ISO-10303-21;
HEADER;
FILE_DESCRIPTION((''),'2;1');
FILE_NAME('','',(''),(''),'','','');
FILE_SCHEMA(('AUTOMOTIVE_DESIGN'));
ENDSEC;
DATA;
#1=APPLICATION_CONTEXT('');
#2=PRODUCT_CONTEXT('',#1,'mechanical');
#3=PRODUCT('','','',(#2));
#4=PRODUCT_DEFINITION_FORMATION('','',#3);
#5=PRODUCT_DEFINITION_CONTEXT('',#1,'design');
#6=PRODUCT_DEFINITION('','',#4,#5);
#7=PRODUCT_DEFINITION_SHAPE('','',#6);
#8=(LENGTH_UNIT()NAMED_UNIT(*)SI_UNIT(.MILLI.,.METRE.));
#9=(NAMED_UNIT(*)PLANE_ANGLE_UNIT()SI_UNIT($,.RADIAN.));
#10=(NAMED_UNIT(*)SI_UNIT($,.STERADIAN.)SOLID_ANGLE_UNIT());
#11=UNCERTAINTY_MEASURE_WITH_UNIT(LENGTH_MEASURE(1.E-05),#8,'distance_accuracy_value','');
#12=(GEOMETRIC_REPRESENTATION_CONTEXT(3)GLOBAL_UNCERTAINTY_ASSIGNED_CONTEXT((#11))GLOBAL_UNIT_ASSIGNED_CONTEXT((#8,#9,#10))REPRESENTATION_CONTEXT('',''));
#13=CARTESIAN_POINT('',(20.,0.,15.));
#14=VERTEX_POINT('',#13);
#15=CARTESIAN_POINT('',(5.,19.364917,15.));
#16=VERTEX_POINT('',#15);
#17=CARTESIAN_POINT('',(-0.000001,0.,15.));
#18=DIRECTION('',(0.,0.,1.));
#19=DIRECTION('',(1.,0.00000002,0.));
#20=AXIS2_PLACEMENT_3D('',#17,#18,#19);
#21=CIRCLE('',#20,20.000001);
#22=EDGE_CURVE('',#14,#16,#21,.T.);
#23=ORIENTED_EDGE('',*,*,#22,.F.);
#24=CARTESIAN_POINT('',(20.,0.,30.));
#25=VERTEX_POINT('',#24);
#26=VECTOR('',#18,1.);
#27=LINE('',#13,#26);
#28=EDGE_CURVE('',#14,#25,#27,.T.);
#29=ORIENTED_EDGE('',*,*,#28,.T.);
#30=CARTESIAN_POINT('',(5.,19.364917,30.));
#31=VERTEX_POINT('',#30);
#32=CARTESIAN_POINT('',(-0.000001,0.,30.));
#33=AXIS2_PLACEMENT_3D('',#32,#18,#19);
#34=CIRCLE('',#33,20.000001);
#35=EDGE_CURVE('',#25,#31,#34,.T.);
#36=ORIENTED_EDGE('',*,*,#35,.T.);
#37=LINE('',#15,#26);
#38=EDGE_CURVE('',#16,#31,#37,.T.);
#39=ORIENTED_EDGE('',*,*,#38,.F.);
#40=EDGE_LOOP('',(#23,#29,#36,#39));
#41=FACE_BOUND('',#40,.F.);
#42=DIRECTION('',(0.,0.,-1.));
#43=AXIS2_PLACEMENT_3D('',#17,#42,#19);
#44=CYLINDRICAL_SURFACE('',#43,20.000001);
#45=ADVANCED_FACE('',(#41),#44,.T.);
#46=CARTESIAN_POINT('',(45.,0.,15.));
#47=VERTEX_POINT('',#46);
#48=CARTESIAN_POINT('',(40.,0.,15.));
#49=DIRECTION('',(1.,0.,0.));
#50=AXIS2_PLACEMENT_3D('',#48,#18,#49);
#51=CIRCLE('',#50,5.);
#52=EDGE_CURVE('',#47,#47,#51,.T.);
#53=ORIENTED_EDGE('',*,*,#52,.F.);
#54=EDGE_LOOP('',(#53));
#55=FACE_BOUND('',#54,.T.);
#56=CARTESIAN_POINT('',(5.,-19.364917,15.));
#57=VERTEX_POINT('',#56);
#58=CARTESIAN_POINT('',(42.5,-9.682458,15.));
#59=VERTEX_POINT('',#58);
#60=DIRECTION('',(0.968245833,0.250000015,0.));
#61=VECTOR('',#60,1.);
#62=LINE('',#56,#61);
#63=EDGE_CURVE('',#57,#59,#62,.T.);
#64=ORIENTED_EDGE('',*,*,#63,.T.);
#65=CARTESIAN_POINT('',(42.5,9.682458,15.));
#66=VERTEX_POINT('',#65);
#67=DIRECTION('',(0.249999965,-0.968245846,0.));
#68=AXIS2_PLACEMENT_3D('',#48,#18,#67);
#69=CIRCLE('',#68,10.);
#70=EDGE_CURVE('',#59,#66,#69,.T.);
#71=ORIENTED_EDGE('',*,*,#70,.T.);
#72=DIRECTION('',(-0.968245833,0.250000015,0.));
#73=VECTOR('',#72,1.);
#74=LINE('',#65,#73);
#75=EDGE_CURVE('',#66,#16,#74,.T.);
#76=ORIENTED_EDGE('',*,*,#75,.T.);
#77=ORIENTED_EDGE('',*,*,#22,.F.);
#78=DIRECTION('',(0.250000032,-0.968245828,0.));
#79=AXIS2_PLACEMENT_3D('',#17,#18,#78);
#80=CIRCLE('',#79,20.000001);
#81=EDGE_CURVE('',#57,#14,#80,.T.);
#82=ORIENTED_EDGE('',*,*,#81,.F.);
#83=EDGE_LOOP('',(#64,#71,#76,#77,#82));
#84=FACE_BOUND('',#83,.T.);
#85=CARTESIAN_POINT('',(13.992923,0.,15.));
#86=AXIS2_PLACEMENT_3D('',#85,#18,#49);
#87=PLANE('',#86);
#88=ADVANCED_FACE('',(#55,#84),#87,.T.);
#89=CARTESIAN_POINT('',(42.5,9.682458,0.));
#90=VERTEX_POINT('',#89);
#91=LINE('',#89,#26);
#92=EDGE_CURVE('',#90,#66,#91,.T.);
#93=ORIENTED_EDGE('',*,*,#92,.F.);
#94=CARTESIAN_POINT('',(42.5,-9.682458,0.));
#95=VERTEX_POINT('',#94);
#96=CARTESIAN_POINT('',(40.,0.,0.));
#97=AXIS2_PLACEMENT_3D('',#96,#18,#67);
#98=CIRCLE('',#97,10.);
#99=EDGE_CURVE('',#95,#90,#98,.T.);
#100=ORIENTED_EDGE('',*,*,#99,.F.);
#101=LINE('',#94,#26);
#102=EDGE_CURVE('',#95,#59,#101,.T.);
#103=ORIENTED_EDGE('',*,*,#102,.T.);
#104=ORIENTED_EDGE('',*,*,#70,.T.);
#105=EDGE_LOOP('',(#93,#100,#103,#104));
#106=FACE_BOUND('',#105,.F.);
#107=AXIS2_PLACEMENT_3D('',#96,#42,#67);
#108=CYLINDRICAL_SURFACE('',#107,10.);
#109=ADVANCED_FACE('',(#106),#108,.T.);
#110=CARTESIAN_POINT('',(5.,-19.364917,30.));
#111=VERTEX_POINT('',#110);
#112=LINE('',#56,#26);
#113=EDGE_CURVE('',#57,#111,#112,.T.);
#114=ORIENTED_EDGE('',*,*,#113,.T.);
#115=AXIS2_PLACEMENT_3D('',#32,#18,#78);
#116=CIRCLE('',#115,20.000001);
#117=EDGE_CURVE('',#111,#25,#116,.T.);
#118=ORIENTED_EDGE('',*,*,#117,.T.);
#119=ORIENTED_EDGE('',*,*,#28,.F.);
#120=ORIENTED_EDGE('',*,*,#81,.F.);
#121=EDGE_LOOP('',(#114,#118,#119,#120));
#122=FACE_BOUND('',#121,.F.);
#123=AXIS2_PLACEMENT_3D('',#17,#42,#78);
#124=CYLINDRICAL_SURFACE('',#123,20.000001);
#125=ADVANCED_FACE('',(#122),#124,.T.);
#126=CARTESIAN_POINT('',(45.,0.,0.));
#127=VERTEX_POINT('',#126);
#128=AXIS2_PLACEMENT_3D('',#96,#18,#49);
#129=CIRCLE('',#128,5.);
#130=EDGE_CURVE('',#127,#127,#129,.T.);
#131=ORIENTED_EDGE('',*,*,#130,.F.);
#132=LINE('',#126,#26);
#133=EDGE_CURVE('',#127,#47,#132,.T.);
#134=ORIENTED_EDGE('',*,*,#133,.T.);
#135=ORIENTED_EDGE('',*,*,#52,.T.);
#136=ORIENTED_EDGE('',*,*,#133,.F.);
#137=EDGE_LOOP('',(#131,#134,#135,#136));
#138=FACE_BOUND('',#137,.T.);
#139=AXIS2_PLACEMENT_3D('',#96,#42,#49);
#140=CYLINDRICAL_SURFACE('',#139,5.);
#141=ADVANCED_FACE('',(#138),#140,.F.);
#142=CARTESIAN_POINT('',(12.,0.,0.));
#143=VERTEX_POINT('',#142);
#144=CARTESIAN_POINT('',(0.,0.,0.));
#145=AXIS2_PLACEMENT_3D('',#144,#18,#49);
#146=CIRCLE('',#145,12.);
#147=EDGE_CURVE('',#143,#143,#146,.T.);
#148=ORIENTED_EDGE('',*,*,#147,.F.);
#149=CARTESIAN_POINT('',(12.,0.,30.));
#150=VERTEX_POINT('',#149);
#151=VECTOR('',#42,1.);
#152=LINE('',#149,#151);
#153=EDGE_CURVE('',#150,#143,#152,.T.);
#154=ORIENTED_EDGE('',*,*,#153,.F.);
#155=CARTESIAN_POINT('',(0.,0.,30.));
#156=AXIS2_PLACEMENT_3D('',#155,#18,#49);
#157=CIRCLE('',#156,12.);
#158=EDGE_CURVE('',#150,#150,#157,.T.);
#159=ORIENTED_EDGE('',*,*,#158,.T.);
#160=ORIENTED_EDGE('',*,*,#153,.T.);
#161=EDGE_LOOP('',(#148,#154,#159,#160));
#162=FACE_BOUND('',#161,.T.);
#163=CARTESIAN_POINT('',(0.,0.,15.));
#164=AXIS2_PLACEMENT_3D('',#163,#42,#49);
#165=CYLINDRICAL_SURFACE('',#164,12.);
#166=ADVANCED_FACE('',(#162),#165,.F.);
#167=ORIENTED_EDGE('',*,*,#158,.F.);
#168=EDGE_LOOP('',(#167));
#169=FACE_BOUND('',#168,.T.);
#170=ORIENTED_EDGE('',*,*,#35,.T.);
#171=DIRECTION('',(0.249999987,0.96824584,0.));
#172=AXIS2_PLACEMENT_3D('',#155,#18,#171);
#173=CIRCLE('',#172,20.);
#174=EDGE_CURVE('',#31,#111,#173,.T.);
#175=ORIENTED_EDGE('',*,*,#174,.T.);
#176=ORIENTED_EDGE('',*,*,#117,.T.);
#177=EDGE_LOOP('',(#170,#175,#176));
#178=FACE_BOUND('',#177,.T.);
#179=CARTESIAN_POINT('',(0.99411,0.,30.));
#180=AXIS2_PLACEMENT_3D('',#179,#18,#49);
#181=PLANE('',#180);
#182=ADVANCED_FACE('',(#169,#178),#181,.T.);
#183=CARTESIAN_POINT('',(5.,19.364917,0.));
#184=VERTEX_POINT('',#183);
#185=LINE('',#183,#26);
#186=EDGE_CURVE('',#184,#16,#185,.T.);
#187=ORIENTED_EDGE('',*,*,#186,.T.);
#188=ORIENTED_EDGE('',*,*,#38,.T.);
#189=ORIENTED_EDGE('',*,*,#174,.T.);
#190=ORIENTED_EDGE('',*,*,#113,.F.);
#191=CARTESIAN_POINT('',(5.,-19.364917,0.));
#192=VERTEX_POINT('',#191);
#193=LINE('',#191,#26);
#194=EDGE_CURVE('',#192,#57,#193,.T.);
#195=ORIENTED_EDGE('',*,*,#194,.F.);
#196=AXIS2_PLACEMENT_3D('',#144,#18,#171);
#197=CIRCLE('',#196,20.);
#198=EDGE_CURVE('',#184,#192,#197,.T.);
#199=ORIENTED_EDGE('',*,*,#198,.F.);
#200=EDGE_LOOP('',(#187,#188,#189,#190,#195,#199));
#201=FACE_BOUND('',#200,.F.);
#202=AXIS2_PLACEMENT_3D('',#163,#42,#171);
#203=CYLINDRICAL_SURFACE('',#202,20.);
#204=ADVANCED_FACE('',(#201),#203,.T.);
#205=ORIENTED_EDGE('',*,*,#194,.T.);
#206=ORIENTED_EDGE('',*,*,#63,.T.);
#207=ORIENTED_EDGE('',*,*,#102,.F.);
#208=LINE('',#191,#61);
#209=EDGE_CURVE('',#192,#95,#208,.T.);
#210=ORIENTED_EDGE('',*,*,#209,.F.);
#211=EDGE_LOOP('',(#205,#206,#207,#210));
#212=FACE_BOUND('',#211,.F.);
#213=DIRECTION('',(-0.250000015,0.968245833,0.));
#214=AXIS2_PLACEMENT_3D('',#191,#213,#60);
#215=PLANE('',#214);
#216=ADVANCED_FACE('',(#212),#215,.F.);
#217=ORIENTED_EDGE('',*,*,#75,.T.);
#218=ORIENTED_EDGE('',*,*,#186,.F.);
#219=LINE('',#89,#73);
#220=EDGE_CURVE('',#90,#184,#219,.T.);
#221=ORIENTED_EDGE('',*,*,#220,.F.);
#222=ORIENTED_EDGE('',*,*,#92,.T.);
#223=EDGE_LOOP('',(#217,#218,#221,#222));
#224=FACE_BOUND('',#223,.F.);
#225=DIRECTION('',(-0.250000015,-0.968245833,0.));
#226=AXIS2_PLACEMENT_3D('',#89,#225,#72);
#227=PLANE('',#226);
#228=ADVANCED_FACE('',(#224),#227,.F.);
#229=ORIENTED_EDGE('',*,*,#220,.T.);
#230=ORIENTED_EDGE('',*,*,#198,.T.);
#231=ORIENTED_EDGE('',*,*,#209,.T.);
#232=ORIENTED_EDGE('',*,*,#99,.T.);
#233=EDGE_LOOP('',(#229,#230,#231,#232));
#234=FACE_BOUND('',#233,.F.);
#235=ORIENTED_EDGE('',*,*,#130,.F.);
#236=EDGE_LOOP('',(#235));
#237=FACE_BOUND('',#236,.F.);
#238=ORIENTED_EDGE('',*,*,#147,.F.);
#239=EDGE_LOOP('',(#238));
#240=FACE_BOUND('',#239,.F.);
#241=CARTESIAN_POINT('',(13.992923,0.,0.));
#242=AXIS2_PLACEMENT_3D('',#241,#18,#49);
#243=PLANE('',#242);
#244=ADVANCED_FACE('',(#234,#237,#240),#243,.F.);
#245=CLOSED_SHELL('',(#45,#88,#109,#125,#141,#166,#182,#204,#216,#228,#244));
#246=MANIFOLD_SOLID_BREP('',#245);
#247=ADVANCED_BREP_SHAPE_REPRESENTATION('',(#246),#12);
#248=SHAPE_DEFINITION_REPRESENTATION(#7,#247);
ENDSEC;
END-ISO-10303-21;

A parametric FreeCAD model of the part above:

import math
import FreeCAD as App
import Part
import Sketcher

doc = App.newDocument("Part")
params = doc.addObject("Spreadsheet::Sheet", "Params")
for row, (alias, value) in enumerate([
    ("sketch1_diameter", "24 mm"),
    ("sketch1_diameter2", "10 mm"),
    ("sketch1_radius", "20 mm"),
    ("sketch1_radius2", "10 mm"),
    ("pad1_length", "15 mm"),
    ("sketch2_diameter", "24 mm"),
    ("sketch2_radius", "20.000001 mm"),
    ("pad2_length", "15 mm"),
], start=1):
    params.set(f"A{row}", alias)
    params.set(f"B{row}", "=" + value)
    params.setAlias(f"B{row}", alias)

body = doc.addObject("PartDesign::Body", "Body")

# Sketch on XY plane
sketch1 = body.newObject("Sketcher::SketchObject", "Sketch")
sketch1.AttachmentSupport = (doc.getObject("XY_Plane"), [""])
sketch1.MapMode = "FlatFace"
sketch1.addGeometry([
    Part.LineSegment(App.Vector(42, 10, 0), App.Vector(5, 19, 0)),  # 0
    Part.ArcOfCircle(Part.Circle(App.Vector(0, 0, 0), App.Vector(0, 0, 1), 20), math.radians(76), math.radians(284)),  # 1
    Part.LineSegment(App.Vector(5, -19, 0), App.Vector(42, -10, 0)),  # 2
    Part.ArcOfCircle(Part.Circle(App.Vector(40, 0, 0), App.Vector(0, 0, 1), 10), math.radians(-76), math.radians(76)),  # 3
    Part.Circle(App.Vector(0, 0, 0), App.Vector(0, 0, 1), 12),  # 4
    Part.Circle(App.Vector(40, 0, 0), App.Vector(0, 0, 1), 5),  # 5
], False)
sketch1.addConstraint([
    Sketcher.Constraint("Tangent", 0, 2, 1, 1),
    Sketcher.Constraint("Tangent", 1, 2, 2, 1),
    Sketcher.Constraint("Tangent", 2, 2, 3, 1),
    Sketcher.Constraint("Tangent", 3, 2, 0, 1),
    Sketcher.Constraint("Coincident", 1, 3, -1, 1),
    Sketcher.Constraint("Coincident", 4, 3, -1, 1),
    Sketcher.Constraint("Coincident", 5, 3, 3, 3),
    Sketcher.Constraint("PointOnObject", 3, 3, -1),
    Sketcher.Constraint("Diameter", 4, 24.0),
    Sketcher.Constraint("Diameter", 5, 10.0),
    Sketcher.Constraint("Radius", 1, 20.0),
    Sketcher.Constraint("Radius", 3, 10.0),
    Sketcher.Constraint("DistanceX", -1, 1, 3, 3, 40.0),
])
sketch1.setExpression("Constraints[8]", "Params.sketch1_diameter")
sketch1.setExpression("Constraints[9]", "Params.sketch1_diameter2")
sketch1.setExpression("Constraints[10]", "Params.sketch1_radius")
sketch1.setExpression("Constraints[11]", "Params.sketch1_radius2")
pad1 = body.newObject("PartDesign::Pad", "Pad")
pad1.Profile = sketch1
pad1.setExpression("Length", "Params.pad1_length")

# Sketch on XY plane
sketch2 = body.newObject("Sketcher::SketchObject", "Sketch001")
sketch2.AttachmentSupport = (doc.getObject("XY_Plane"), [""])
sketch2.MapMode = "FlatFace"
sketch2.AttachmentOffset = App.Placement(App.Vector(0, 0, 15), App.Rotation())
sketch2.addGeometry([
    Part.ArcOfCircle(Part.Circle(App.Vector(0, 0, 0), App.Vector(0, 0, 1), 20), math.radians(-76), math.radians(0)),
    Part.ArcOfCircle(Part.Circle(App.Vector(0, 0, 0), App.Vector(0, 0, 1), 20), math.radians(0), math.radians(76)),
    Part.ArcOfCircle(Part.Circle(App.Vector(0, 0, 0), App.Vector(0, 0, 1), 20), math.radians(76), math.radians(284)),
    Part.Circle(App.Vector(0, 0, 0), App.Vector(0, 0, 1), 12),
], False)
sketch2.addConstraint([
    Sketcher.Constraint("Tangent", 0, 2, 1, 1),
    Sketcher.Constraint("Tangent", 1, 2, 2, 1),
    Sketcher.Constraint("Tangent", 2, 2, 0, 1),
    Sketcher.Constraint("Coincident", 0, 3, -1, 1),
    Sketcher.Constraint("Coincident", 3, 3, -1, 1),
    Sketcher.Constraint("PointOnObject", 0, 2, -1),
    Sketcher.Constraint("Vertical", 1, 2, 2, 2),
    Sketcher.Constraint("Diameter", 3, 24.0),
    Sketcher.Constraint("Radius", 0, 20.000001),
    Sketcher.Constraint("DistanceX", -1, 1, 1, 2, 5.0),
])
sketch2.setExpression("Constraints[7]", "Params.sketch2_diameter")
sketch2.setExpression("Constraints[8]", "Params.sketch2_radius")
pad2 = body.newObject("PartDesign::Pad", "Pad001")
pad2.Profile = sketch2
pad2.setExpression("Length", "Params.pad2_length")

doc.recompute()
